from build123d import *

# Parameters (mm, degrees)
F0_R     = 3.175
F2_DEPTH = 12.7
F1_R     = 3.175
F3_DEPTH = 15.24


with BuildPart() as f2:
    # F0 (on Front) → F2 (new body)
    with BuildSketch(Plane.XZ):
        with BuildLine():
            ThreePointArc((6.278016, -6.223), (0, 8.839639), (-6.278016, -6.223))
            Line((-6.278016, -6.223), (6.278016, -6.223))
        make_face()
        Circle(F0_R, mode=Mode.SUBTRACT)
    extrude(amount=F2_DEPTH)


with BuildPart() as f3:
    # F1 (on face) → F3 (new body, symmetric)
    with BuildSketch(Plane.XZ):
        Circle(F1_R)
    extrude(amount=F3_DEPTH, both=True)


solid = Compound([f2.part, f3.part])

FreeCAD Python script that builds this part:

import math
import FreeCAD as App
import Part
import Sketcher

V = App.Vector
Q = App.Units.Quantity

doc = App.newDocument("Part")
body = doc.addObject("PartDesign::Body", "Body")

sketch1 = body.newObject("Sketcher::SketchObject", "Sketch")
sketch1.AttachmentSupport = (doc.getObject("XZ_Plane"), [""])
sketch1.MapMode = "FlatFace"
sketch1.addGeometry([
    Part.ArcOfCircle(Part.Circle(V(0, 0, 0), V(0, 0, 1), 8.839639), math.radians(-44.747848), math.radians(224.747848)),
    Part.LineSegment(V(-6.278016, -6.223, 0), V(6.278016, -6.223, 0)),
    Part.Circle(V(0, 0, 0), V(0, 0, 1), 3.175),
], False)
sketch1.addConstraint([
    Sketcher.Constraint("Coincident", 0, 1, 1, 2),
    Sketcher.Constraint("Coincident", 1, 1, 0, 2),
    Sketcher.Constraint("Horizontal", 1),
    Sketcher.Constraint("Coincident", 0, 3, -1, 1),
    Sketcher.Constraint("Coincident", 2, 3, -1, 1),
    Sketcher.Constraint("Diameter", 2, Q("0.25 in")),
    Sketcher.Constraint("DistanceY", 0, 1, -1, 1, Q("0.245 in")),
    Sketcher.Constraint("Radius", 0, 8.839639),
])
pad1 = body.newObject("PartDesign::Pad", "Pad")
pad1.Profile = sketch1
pad1.Length = Q("0.5 in")
body2 = doc.addObject("PartDesign::Body", "Body001")

sketch2 = body2.newObject("Sketcher::SketchObject", "Sketch001")
sketch2.AttachmentSupport = (doc.getObject("XZ_Plane001"), [""])
sketch2.MapMode = "FlatFace"
sketch2.addGeometry(Part.Circle(V(0, 0, 0), V(0, 0, 1), 3.175), False)
sketch2.addConstraint([
    Sketcher.Constraint("Coincident", 0, 3, -1, 1),
    Sketcher.Constraint("Diameter", 0, Q("0.25 in")),
])
pad2 = body2.newObject("PartDesign::Pad", "Pad001")
pad2.Profile = sketch2
pad2.Length = Q("1.2 in")
pad2.Midplane = True

doc.recompute()
